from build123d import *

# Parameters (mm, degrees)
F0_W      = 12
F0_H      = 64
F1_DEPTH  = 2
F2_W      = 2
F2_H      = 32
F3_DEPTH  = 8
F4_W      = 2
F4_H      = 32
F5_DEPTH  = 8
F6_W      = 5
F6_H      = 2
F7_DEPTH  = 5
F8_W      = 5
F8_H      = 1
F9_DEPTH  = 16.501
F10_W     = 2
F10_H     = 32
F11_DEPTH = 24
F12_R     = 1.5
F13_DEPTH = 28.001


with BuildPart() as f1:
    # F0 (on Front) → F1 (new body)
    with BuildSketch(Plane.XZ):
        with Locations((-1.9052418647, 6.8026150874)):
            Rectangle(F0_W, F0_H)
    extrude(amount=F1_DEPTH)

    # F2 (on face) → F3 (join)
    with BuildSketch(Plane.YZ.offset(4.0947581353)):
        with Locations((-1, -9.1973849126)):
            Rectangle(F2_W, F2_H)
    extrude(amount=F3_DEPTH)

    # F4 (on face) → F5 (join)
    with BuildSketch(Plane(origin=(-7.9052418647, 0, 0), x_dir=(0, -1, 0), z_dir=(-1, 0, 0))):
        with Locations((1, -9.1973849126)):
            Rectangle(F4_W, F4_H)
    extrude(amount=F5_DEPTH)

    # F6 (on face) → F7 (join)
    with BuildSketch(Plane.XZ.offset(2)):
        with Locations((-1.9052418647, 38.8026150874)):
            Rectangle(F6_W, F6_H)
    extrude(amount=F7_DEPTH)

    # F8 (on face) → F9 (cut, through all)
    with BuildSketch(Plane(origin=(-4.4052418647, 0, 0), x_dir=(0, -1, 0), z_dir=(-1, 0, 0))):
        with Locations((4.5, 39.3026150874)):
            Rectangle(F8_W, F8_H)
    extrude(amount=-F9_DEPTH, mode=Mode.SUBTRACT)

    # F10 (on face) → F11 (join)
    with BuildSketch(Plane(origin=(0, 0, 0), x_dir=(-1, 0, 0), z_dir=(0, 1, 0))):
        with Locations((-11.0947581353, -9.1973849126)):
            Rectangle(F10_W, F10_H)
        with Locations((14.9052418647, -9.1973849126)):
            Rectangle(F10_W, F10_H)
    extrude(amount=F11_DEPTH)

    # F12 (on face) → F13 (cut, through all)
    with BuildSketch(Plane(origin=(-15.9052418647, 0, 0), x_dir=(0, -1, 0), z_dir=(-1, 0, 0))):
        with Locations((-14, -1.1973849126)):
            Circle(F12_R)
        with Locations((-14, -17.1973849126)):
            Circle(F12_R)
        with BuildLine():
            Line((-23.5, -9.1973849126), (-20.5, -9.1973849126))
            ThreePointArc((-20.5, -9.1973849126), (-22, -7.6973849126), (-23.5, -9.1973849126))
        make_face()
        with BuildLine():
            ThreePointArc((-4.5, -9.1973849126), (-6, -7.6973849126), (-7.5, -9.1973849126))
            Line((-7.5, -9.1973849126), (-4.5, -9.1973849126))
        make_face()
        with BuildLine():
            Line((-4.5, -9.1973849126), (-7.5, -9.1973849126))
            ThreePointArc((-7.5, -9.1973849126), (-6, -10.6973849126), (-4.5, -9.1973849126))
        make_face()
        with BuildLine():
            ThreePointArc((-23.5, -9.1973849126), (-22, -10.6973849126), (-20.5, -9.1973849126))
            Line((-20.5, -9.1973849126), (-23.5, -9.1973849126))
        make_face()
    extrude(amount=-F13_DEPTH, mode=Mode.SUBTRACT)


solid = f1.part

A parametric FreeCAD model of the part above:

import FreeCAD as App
import Part
import Sketcher
Q = App.Units.Quantity


def add_polygon(sketch, points):
    """Adds a closed chain of lines whose ends are joined by coincident constraints."""
    first, n = sketch.GeometryCount, len(points)
    for a, b in zip(points, points[1:] + points[:1]):
        sketch.addGeometry(Part.LineSegment(App.Vector(*a, 0), App.Vector(*b, 0)), False)
    for i in range(n):
        sketch.addConstraint(Sketcher.Constraint("Coincident", first + i, 2, first + (i + 1) % n, 1))

doc = App.newDocument("Part")
params = doc.addObject("Spreadsheet::Sheet", "Params")
for row, (alias, value) in enumerate([
    ("sketch1_width", "12 mm"),
    ("sketch1_height", "64 mm"),
    ("pad1_length", "2 mm"),
    ("sketch2_width", "2 mm"),
    ("sketch2_height", "32 mm"),
    ("pad2_length", "8 mm"),
    ("sketch3_width", "2 mm"),
    ("sketch3_height", "32 mm"),
    ("pad3_length", "8 mm"),
    ("sketch4_width", "5 mm"),
    ("sketch4_height", "2 mm"),
    ("pad4_length", "5 mm"),
    ("sketch5_width", "5 mm"),
    ("sketch5_height", "1 mm"),
    ("sketch6_width", "2 mm"),
    ("sketch6_height", "32 mm"),
    ("pad5_length", "24 mm"),
    ("sketch7_diameter", "3 mm"),
], start=1):
    params.set(f"A{row}", alias)
    params.set(f"B{row}", "=" + value)
    params.setAlias(f"B{row}", alias)

body = doc.addObject("PartDesign::Body", "Body")

sketch1 = doc.addObject("Sketcher::SketchObject", "Sketch")
body.addObject(sketch1)
sketch1.AttachmentSupport = (doc.XZ_Plane, [""])
sketch1.MapMode = "FlatFace"
add_polygon(sketch1, [(-7.905242, 38.802615), (-7.905242, -25.197385), (4.094758, -25.197385), (4.094758, 38.802615)])
sketch1.addConstraint([
    Sketcher.Constraint("Vertical", 0),
    Sketcher.Constraint("Horizontal", 1),
    Sketcher.Constraint("Vertical", 2),
    Sketcher.Constraint("Horizontal", 3),
    Sketcher.Constraint("DistanceX", 1, 1, 1, 2, Q("12 mm")),
    Sketcher.Constraint("DistanceY", 0, 2, 0, 1, Q("64 mm")),
    Sketcher.Constraint("DistanceX", 0, 2, -1, 1, Q("7.905242 mm")),
    Sketcher.Constraint("DistanceY", 0, 2, -1, 1, Q("25.197385 mm")),
])
sketch1.setExpression("Constraints[8]", "Params.sketch1_width")
sketch1.setExpression("Constraints[9]", "Params.sketch1_height")
pad1 = doc.addObject("PartDesign::Pad", "Pad")
body.addObject(pad1)
pad1.Profile = sketch1
pad1.setExpression("Length", "Params.pad1_length")

sketch2 = doc.addObject("Sketcher::SketchObject", "Sketch001")
body.addObject(sketch2)
sketch2.AttachmentSupport = (doc.YZ_Plane, [""])
sketch2.MapMode = "FlatFace"
sketch2.AttachmentOffset = App.Placement(App.Vector(0, 0, 4.094758), App.Rotation())
add_polygon(sketch2, [(-2, 6.802615), (-2, -25.197385), (0, -25.197385), (0, 6.802615)])
sketch2.addConstraint([
    Sketcher.Constraint("Vertical", 0),
    Sketcher.Constraint("Horizontal", 1),
    Sketcher.Constraint("Vertical", 2),
    Sketcher.Constraint("Horizontal", 3),
    Sketcher.Constraint("PointOnObject", 1, 2, -2),
    Sketcher.Constraint("DistanceX", 1, 1, 1, 2, Q("2 mm")),
    Sketcher.Constraint("DistanceY", 0, 2, 0, 1, Q("32 mm")),
    Sketcher.Constraint("DistanceY", 0, 2, -1, 1, Q("25.197385 mm")),
])
sketch2.setExpression("Constraints[9]", "Params.sketch2_width")
sketch2.setExpression("Constraints[10]", "Params.sketch2_height")
pad2 = doc.addObject("PartDesign::Pad", "Pad001")
body.addObject(pad2)
pad2.Profile = sketch2
pad2.setExpression("Length", "Params.pad2_length")

sketch3 = doc.addObject("Sketcher::SketchObject", "Sketch002")
body.addObject(sketch3)
sketch3.AttachmentSupport = (doc.YZ_Plane, [""])
sketch3.MapMode = "FlatFace"
sketch3.AttachmentOffset = App.Placement(App.Vector(0, 0, -7.905242), App.Rotation())
add_polygon(sketch3, [(0, 6.802615), (0, -25.197385), (-2, -25.197385), (-2, 6.802615)])
sketch3.addConstraint([
    Sketcher.Constraint("Vertical", 0),
    Sketcher.Constraint("Horizontal", 1),
    Sketcher.Constraint("Vertical", 2),
    Sketcher.Constraint("Horizontal", 3),
    Sketcher.Constraint("PointOnObject", 0, 2, -2),
    Sketcher.Constraint("DistanceX", 1, 2, 1, 1, Q("2 mm")),
    Sketcher.Constraint("DistanceY", 0, 2, 0, 1, Q("32 mm")),
    Sketcher.Constraint("DistanceY", 0, 2, -1, 1, Q("25.197385 mm")),
])
sketch3.setExpression("Constraints[9]", "Params.sketch3_width")
sketch3.setExpression("Constraints[10]", "Params.sketch3_height")
pad3 = doc.addObject("PartDesign::Pad", "Pad002")
body.addObject(pad3)
pad3.Profile = sketch3
pad3.setExpression("Length", "Params.pad3_length")
pad3.Reversed = True

sketch4 = doc.addObject("Sketcher::SketchObject", "Sketch003")
body.addObject(sketch4)
sketch4.AttachmentSupport = (doc.XZ_Plane, [""])
sketch4.MapMode = "FlatFace"
sketch4.AttachmentOffset = App.Placement(App.Vector(0, 0, 2), App.Rotation())
add_polygon(sketch4, [(-4.405242, 39.802615), (-4.405242, 37.802615), (0.594758, 37.802615), (0.594758, 39.802615)])
sketch4.addConstraint([
    Sketcher.Constraint("Vertical", 0),
    Sketcher.Constraint("Horizontal", 1),
    Sketcher.Constraint("Vertical", 2),
    Sketcher.Constraint("Horizontal", 3),
    Sketcher.Constraint("DistanceX", 1, 1, 1, 2, Q("5 mm")),
    Sketcher.Constraint("DistanceY", 0, 2, 0, 1, Q("2 mm")),
    Sketcher.Constraint("DistanceX", 0, 2, -1, 1, Q("4.405242 mm")),
    Sketcher.Constraint("DistanceY", -1, 1, 0, 2, Q("37.802615 mm")),
])
sketch4.setExpression("Constraints[8]", "Params.sketch4_width")
sketch4.setExpression("Constraints[9]", "Params.sketch4_height")
pad4 = doc.addObject("PartDesign::Pad", "Pad003")
body.addObject(pad4)
pad4.Profile = sketch4
pad4.setExpression("Length", "Params.pad4_length")

sketch5 = doc.addObject("Sketcher::SketchObject", "Sketch004")
body.addObject(sketch5)
sketch5.AttachmentSupport = (doc.YZ_Plane, [""])
sketch5.MapMode = "FlatFace"
sketch5.AttachmentOffset = App.Placement(App.Vector(0, 0, -4.405242), App.Rotation())
add_polygon(sketch5, [(-2, 39.802615), (-2, 38.802615), (-7, 38.802615), (-7, 39.802615)])
sketch5.addConstraint([
    Sketcher.Constraint("Vertical", 0),
    Sketcher.Constraint("Horizontal", 1),
    Sketcher.Constraint("Vertical", 2),
    Sketcher.Constraint("Horizontal", 3),
    Sketcher.Constraint("DistanceX", 1, 2, 1, 1, Q("5 mm")),
    Sketcher.Constraint("DistanceY", 0, 2, 0, 1, Q("1 mm")),
    Sketcher.Constraint("DistanceX", 0, 2, -1, 1, Q("2 mm")),
    Sketcher.Constraint("DistanceY", -1, 1, 0, 2, Q("38.802615 mm")),
])
sketch5.setExpression("Constraints[8]", "Params.sketch5_width")
sketch5.setExpression("Constraints[9]", "Params.sketch5_height")
pocket1 = doc.addObject("PartDesign::Pocket", "Pocket")
body.addObject(pocket1)
pocket1.Profile = sketch5
pocket1.Type = "ThroughAll"
pocket1.Reversed = True

sketch6 = doc.addObject("Sketcher::SketchObject", "Sketch005")
body.addObject(sketch6)
sketch6.AttachmentSupport = (doc.XZ_Plane, [""])
sketch6.MapMode = "FlatFace"
add_polygon(sketch6, [(12.094758, 6.802615), (12.094758, -25.197385), (10.094758, -25.197385), (10.094758, 6.802615)])
add_polygon(sketch6, [(-13.905242, 6.802615), (-13.905242, -25.197385), (-15.905242, -25.197385), (-15.905242, 6.802615)])
sketch6.addConstraint([
    Sketcher.Constraint("Vertical", 0),
    Sketcher.Constraint("Horizontal", 1),
    Sketcher.Constraint("Vertical", 2),
    Sketcher.Constraint("Horizontal", 3),
    Sketcher.Constraint("Vertical", 4),
    Sketcher.Constraint("Horizontal", 5),
    Sketcher.Constraint("Vertical", 6),
    Sketcher.Constraint("Horizontal", 7),
    Sketcher.Constraint("Horizontal", 1, 2, 4, 2),
    Sketcher.Constraint("Horizontal", 3, 2, 6, 2),
    Sketcher.Constraint("Equal", 3, 5),
    Sketcher.Constraint("DistanceX", 1, 2, 1, 1, Q("2 mm")),
    Sketcher.Constraint("DistanceY", 0, 2, 0, 1, Q("32 mm")),
    Sketcher.Constraint("DistanceX", 4, 2, 1, 2, Q("24 mm")),
    Sketcher.Constraint("DistanceX", -1, 1, 0, 2, Q("12.094758 mm")),
    Sketcher.Constraint("DistanceY", 0, 2, -1, 1, Q("25.197385 mm")),
])
sketch6.setExpression("Constraints[19]", "Params.sketch6_width")
sketch6.setExpression("Constraints[20]", "Params.sketch6_height")
pad5 = doc.addObject("PartDesign::Pad", "Pad004")
body.addObject(pad5)
pad5.Profile = sketch6
pad5.setExpression("Length", "Params.pad5_length")
pad5.Reversed = True

sketch7 = doc.addObject("Sketcher::SketchObject", "Sketch006")
body.addObject(sketch7)
sketch7.AttachmentSupport = (doc.YZ_Plane, [""])
sketch7.MapMode = "FlatFace"
sketch7.AttachmentOffset = App.Placement(App.Vector(0, 0, -15.905242), App.Rotation())
sketch7.addGeometry([
    Part.Circle(App.Vector(14, -1.197385, 0), App.Vector(0, 0, 1), 1.5),
    Part.Circle(App.Vector(14, -17.197385, 0), App.Vector(0, 0, 1), 1.5),
    Part.Circle(App.Vector(22, -9.197385, 0), App.Vector(0, 0, 1), 1.5),
    Part.Circle(App.Vector(6, -9.197385, 0), App.Vector(0, 0, 1), 1.5),
], False)
sketch7.addConstraint([
    Sketcher.Constraint("Equal", 0, 1),
    Sketcher.Constraint("Equal", 1, 2),
    Sketcher.Constraint("Equal", 2, 3),
    Sketcher.Constraint("Horizontal", 2, 3, 3, 3),
    Sketcher.Constraint("Vertical", 0, 3, 1, 3),
    Sketcher.Constraint("Diameter", 0, Q("3 mm")),
    Sketcher.Constraint("DistanceX", -1, 1, 0, 3, Q("14 mm")),
    Sketcher.Constraint("DistanceX", -1, 1, 2, 3, Q("22 mm")),
    Sketcher.Constraint("DistanceX", -1, 1, 3, 3, Q("6 mm")),
    Sketcher.Constraint("DistanceY", 1, 3, 0, 3, Q("16 mm")),
    Sketcher.Constraint("DistanceY", 2, 3, 0, 3, Q("8 mm")),
    Sketcher.Constraint("DistanceY", 0, 3, -1, 1, Q("1.197385 mm")),
])
sketch7.setExpression("Constraints[5]", "Params.sketch7_diameter")
pocket2 = doc.addObject("PartDesign::Pocket", "Pocket001")
body.addObject(pocket2)
pocket2.Profile = sketch7
pocket2.Type = "ThroughAll"
pocket2.Reversed = True

doc.recompute()
